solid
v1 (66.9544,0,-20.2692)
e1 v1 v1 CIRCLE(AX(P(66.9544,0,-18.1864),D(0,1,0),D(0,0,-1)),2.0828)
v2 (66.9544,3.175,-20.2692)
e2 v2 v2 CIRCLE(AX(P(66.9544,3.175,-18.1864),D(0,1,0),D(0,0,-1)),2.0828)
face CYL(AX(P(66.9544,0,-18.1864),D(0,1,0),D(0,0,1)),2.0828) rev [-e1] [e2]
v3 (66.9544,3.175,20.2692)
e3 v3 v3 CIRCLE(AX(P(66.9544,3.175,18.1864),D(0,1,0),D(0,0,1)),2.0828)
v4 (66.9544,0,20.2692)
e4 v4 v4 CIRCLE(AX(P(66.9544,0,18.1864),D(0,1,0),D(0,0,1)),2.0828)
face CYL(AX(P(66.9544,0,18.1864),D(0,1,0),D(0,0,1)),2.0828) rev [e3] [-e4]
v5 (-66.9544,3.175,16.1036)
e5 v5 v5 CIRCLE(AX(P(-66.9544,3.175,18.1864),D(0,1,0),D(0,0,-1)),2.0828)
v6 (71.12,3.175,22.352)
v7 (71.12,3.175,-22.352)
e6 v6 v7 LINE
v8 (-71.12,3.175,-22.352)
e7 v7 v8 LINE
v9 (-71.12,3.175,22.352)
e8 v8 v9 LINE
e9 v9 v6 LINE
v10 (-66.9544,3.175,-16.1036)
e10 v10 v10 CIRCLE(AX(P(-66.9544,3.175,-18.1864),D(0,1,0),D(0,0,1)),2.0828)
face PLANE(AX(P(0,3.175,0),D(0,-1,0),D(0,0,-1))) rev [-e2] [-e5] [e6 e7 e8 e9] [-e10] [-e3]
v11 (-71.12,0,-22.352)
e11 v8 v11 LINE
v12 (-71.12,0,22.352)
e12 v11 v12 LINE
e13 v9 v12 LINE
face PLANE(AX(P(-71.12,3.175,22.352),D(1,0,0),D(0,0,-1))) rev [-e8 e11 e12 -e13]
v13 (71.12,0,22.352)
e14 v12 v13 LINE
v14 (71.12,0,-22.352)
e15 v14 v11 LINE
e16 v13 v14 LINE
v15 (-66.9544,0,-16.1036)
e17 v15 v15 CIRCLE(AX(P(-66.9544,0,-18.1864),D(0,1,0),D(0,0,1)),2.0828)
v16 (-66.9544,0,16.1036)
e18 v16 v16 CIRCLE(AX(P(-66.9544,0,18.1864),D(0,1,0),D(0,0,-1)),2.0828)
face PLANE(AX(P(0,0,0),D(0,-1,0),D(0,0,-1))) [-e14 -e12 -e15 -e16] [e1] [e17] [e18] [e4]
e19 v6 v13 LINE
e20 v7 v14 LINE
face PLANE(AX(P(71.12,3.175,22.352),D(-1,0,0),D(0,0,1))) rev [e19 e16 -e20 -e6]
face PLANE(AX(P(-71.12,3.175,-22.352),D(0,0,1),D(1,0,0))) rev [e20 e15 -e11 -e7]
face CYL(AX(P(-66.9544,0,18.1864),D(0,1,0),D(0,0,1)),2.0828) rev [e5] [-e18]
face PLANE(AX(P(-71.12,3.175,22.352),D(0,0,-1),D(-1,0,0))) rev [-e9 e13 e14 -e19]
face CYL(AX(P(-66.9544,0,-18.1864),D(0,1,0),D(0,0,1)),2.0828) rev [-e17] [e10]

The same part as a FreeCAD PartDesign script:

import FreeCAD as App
import Part
import Sketcher

V = App.Vector
Q = App.Units.Quantity

doc = App.newDocument("Part")
body = doc.addObject("PartDesign::Body", "Body")

sketch1 = body.newObject("Sketcher::SketchObject", "Sketch")
sketch1.AttachmentSupport = (doc.getObject("XZ_Plane"), [""])
sketch1.MapMode = "FlatFace"
sketch1.addGeometry(Part.LineSegment(V(-71, -22, 0), V(-71, 22, 0)), False)
sketch1.addGeometry(Part.LineSegment(V(-71, 22, 0), V(71, 22, 0)), False)
sketch1.addGeometry(Part.LineSegment(V(71, 22, 0), V(71, -22, 0)), False)
sketch1.addGeometry(Part.LineSegment(V(71, -22, 0), V(-71, -22, 0)), False)
sketch1.addConstraint(Sketcher.Constraint("Coincident", 0, 2, 1, 1))
sketch1.addConstraint(Sketcher.Constraint("Coincident", 1, 2, 2, 1))
sketch1.addConstraint(Sketcher.Constraint("Coincident", 2, 2, 3, 1))
sketch1.addConstraint(Sketcher.Constraint("Coincident", 3, 2, 0, 1))
sketch1.addConstraint(Sketcher.Constraint("Vertical", 0))
sketch1.addConstraint(Sketcher.Constraint("Horizontal", 1))
sketch1.addConstraint(Sketcher.Constraint("Vertical", 2))
sketch1.addConstraint(Sketcher.Constraint("Horizontal", 3))
sketch1.addConstraint(Sketcher.Constraint("Symmetric", 0, 2, 2, 2, -1, 1))
sketch1.addConstraint(Sketcher.Constraint("DistanceX", 1, 1, 1, 2, Q("5.6 in")))
sketch1.addConstraint(Sketcher.Constraint("DistanceY", 0, 1, 0, 2, Q("1.76 in")))
pad1 = body.newObject("PartDesign::Pad", "Pad")
pad1.Profile = sketch1
pad1.Length = Q("0.125 in")
pad1.Reversed = True

sketch2 = body.newObject("Sketcher::SketchObject", "Sketch001")
sketch2.AttachmentSupport = (doc.getObject("XZ_Plane"), [""])
sketch2.MapMode = "FlatFace"
sketch2.AttachmentOffset = App.Placement(V(0, 0, -0.125 * 25.4), App.Rotation())
sketch2.addGeometry(Part.Circle(V(-67, -18.2, 0), V(0, 0, 1), 2.1), False)
sketch2.addGeometry(Part.Circle(V(-67, 18.2, 0), V(0, 0, 1), 2.1), False)
sketch2.addGeometry(Part.Circle(V(67, -18.2, 0), V(0, 0, 1), 2.1), False)
sketch2.addGeometry(Part.Circle(V(67, 18.2, 0), V(0, 0, 1), 2.1), False)
sketch2.addConstraint(Sketcher.Constraint("Equal", 0, 1))
sketch2.addConstraint(Sketcher.Constraint("Equal", 1, 2))
sketch2.addConstraint(Sketcher.Constraint("Equal", 2, 3))
sketch2.addConstraint(Sketcher.Constraint("Symmetric", 1, 3, 2, 3, -1, 1))
sketch2.addConstraint(Sketcher.Constraint("Symmetric", 0, 3, 3, 3, -1, 1))
sketch2.addConstraint(Sketcher.Constraint("Symmetric", 0, 3, 2, 3, -2))
sketch2.addConstraint(Sketcher.Constraint("Diameter", 0, Q("0.164 in")))
sketch2.addConstraint(Sketcher.Constraint("DistanceX", 0, 3, -1, 1, Q("2.636 in")))
sketch2.addConstraint(Sketcher.Constraint("DistanceY", 0, 3, -1, 1, Q("0.716 in")))
pocket1 = body.newObject("PartDesign::Pocket", "Pocket")
pocket1.Profile = sketch2
pocket1.Type = "ThroughAll"
pocket1.Reversed = True

doc.recompute()
